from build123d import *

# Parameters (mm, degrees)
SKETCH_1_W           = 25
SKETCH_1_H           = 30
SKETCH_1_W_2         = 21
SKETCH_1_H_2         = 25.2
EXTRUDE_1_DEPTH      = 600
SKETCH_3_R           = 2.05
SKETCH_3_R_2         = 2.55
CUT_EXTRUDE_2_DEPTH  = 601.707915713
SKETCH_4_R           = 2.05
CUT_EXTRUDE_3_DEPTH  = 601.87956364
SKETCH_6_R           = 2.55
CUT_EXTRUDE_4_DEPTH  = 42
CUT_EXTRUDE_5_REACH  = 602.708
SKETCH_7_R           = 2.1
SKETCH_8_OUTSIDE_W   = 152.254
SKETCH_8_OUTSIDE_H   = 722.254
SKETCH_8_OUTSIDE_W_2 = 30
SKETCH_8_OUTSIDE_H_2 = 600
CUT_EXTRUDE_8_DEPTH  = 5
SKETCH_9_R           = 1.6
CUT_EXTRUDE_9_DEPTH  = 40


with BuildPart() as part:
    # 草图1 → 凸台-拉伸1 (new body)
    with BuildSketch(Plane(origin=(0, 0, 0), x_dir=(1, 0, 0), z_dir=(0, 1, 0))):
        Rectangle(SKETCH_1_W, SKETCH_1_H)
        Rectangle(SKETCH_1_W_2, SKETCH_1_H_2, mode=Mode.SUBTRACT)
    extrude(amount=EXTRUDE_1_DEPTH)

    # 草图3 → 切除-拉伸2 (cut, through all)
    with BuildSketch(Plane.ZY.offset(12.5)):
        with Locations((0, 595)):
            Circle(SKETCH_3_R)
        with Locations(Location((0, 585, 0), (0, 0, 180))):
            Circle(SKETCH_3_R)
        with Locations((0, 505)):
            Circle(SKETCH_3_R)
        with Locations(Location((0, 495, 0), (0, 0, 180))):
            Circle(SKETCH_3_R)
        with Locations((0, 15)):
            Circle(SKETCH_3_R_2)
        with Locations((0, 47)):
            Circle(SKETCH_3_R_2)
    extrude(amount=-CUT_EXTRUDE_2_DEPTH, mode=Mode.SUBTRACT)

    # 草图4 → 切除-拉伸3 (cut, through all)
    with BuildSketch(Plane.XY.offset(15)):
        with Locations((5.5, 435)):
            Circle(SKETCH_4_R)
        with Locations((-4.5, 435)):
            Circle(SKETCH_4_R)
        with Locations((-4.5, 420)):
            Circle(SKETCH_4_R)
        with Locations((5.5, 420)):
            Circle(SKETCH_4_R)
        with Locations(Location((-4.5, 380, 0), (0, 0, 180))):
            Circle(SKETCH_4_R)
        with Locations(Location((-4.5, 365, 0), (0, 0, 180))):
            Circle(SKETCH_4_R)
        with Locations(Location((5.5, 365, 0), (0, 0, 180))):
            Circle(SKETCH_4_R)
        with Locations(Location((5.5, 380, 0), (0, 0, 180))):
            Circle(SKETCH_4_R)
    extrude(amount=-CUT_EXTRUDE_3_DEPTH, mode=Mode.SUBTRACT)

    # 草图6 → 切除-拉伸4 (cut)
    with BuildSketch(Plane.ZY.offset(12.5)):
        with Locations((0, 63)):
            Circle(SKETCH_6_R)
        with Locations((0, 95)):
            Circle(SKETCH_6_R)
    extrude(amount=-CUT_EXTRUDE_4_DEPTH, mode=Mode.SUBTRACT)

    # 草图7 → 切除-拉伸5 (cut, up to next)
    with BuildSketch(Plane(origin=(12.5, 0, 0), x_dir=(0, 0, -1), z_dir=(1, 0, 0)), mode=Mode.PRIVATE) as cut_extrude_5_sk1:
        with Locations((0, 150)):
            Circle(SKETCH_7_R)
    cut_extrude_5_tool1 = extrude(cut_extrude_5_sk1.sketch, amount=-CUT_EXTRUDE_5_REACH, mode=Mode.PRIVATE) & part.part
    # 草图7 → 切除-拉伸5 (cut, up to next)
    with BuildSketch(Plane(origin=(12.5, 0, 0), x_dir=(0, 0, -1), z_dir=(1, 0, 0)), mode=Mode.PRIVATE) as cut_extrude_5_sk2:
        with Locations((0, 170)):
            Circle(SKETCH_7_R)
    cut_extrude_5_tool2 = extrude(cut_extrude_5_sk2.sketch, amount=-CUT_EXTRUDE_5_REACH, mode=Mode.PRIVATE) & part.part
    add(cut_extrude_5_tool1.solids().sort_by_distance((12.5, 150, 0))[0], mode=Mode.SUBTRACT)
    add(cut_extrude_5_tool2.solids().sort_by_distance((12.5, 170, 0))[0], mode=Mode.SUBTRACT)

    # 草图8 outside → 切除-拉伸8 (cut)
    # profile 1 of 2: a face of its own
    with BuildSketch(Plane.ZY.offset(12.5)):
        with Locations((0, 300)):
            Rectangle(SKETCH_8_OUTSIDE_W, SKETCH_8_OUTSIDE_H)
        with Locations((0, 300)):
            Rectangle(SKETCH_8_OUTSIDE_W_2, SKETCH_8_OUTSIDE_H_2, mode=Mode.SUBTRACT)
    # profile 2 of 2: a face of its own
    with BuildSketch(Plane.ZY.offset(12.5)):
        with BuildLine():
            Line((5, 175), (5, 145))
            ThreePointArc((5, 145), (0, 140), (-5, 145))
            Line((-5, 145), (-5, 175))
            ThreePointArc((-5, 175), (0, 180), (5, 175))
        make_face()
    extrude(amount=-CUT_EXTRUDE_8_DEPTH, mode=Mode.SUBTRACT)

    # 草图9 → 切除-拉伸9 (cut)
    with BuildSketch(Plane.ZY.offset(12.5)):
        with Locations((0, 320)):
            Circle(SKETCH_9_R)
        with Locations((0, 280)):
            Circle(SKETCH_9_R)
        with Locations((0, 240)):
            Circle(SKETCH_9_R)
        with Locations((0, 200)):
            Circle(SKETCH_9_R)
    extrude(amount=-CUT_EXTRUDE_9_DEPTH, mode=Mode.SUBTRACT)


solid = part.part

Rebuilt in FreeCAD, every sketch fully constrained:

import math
import FreeCAD as App
import Part
import Sketcher
from FreeCAD import Vector
Q = App.Units.Quantity

doc = App.newDocument("Part")
body = doc.addObject("PartDesign::Body", "Body")

# Sketch on XZ plane
sketch1 = body.newObject("Sketcher::SketchObject", "Sketch")
sketch1.AttachmentSupport = (doc.getObject("XZ_Plane"), [""])
sketch1.MapMode = "FlatFace"
sketch1.addGeometry([
    Part.LineSegment(Vector(-12.5, -15, 0), Vector(-12.5, 15, 0)),  # 0
    Part.LineSegment(Vector(-12.5, 15, 0), Vector(12.5, 15, 0)),  # 1
    Part.LineSegment(Vector(12.5, 15, 0), Vector(12.5, -15, 0)),  # 2
    Part.LineSegment(Vector(12.5, -15, 0), Vector(-12.5, -15, 0)),  # 3
    Part.LineSegment(Vector(10.5, 12.6, 0), Vector(-10.5, 12.6, 0)),  # 4
    Part.LineSegment(Vector(-10.5, 12.6, 0), Vector(-10.5, -12.6, 0)),  # 5
    Part.LineSegment(Vector(-10.5, -12.6, 0), Vector(10.5, -12.6, 0)),  # 6
    Part.LineSegment(Vector(10.5, -12.6, 0), Vector(10.5, 12.6, 0)),  # 7
], False)
sketch1.addConstraint([
    Sketcher.Constraint("Coincident", 0, 2, 1, 1),
    Sketcher.Constraint("Coincident", 1, 2, 2, 1),
    Sketcher.Constraint("Coincident", 2, 2, 3, 1),
    Sketcher.Constraint("Coincident", 3, 2, 0, 1),
    Sketcher.Constraint("Coincident", 4, 2, 5, 1),
    Sketcher.Constraint("Coincident", 5, 2, 6, 1),
    Sketcher.Constraint("Coincident", 6, 2, 7, 1),
    Sketcher.Constraint("Coincident", 7, 2, 4, 1),
    Sketcher.Constraint("Vertical", 0),
    Sketcher.Constraint("Horizontal", 1),
    Sketcher.Constraint("Vertical", 2),
    Sketcher.Constraint("Horizontal", 3),
    Sketcher.Constraint("Horizontal", 4),
    Sketcher.Constraint("Vertical", 5),
    Sketcher.Constraint("Horizontal", 6),
    Sketcher.Constraint("Vertical", 7),
    Sketcher.Constraint("Symmetric", 0, 2, 2, 2, -1, 1),
    Sketcher.Constraint("Symmetric", 4, 2, 6, 2, -1, 1),
    Sketcher.Constraint("DistanceX", 1, 1, 1, 2, Q("25 mm")),
    Sketcher.Constraint("DistanceX", 4, 2, 4, 1, Q("21 mm")),
    Sketcher.Constraint("DistanceY", 0, 1, 0, 2, Q("30 mm")),
    Sketcher.Constraint("DistanceY", 5, 2, 5, 1, Q("25.2 mm")),
])
pad1 = body.newObject("PartDesign::Pad", "Pad")
pad1.Profile = sketch1
pad1.Length = 600
pad1.Reversed = True

# Sketch on YZ plane
sketch2 = body.newObject("Sketcher::SketchObject", "Sketch001")
sketch2.AttachmentSupport = (doc.getObject("YZ_Plane"), [""])
sketch2.MapMode = "FlatFace"
sketch2.AttachmentOffset = App.Placement(Vector(0, 0, -12.5), App.Rotation())
sketch2.addGeometry([
    Part.Circle(Vector(595, 0, 0), Vector(0, 0, 1), 2.05),  # 0
    Part.Circle(Vector(585, 0, 0), Vector(0, 0, 1), 2.05),  # 1
    Part.Circle(Vector(505, 0, 0), Vector(0, 0, 1), 2.05),  # 2
    Part.Circle(Vector(495, 0, 0), Vector(0, 0, 1), 2.05),  # 3
    Part.Circle(Vector(15, 0, 0), Vector(0, 0, 1), 2.55),  # 4
    Part.Circle(Vector(47, 0, 0), Vector(0, 0, 1), 2.55),  # 5
], False)
sketch2.addConstraint([
    Sketcher.Constraint("Equal", 0, 1),
    Sketcher.Constraint("Equal", 1, 2),
    Sketcher.Constraint("Equal", 2, 3),
    Sketcher.Constraint("Equal", 4, 5),
    Sketcher.Constraint("PointOnObject", 0, 3, -1),
    Sketcher.Constraint("PointOnObject", 1, 3, -1),
    Sketcher.Constraint("PointOnObject", 2, 3, -1),
    Sketcher.Constraint("PointOnObject", 3, 3, -1),
    Sketcher.Constraint("PointOnObject", 4, 3, -1),
    Sketcher.Constraint("PointOnObject", 5, 3, -1),
    Sketcher.Constraint("Diameter", 0, Q("4.1 mm")),
    Sketcher.Constraint("Diameter", 4, Q("5.1 mm")),
    Sketcher.Constraint("DistanceX", -1, 1, 0, 3, Q("595 mm")),
    Sketcher.Constraint("DistanceX", -1, 1, 1, 3, Q("585 mm")),
    Sketcher.Constraint("DistanceX", -1, 1, 2, 3, Q("505 mm")),
    Sketcher.Constraint("DistanceX", -1, 1, 3, 3, Q("495 mm")),
    Sketcher.Constraint("DistanceX", -1, 1, 4, 3, Q("15 mm")),
    Sketcher.Constraint("DistanceX", -1, 1, 5, 3, Q("47 mm")),
])
pocket1 = body.newObject("PartDesign::Pocket", "Pocket")
pocket1.Profile = sketch2
pocket1.Type = "ThroughAll"
pocket1.Reversed = True

# Sketch on XY plane
sketch3 = body.newObject("Sketcher::SketchObject", "Sketch002")
sketch3.AttachmentSupport = (doc.getObject("XY_Plane"), [""])
sketch3.MapMode = "FlatFace"
sketch3.AttachmentOffset = App.Placement(Vector(0, 0, 15), App.Rotation())
sketch3.addGeometry([
    Part.Circle(Vector(5.5, 435, 0), Vector(0, 0, 1), 2.05),  # 0
    Part.Circle(Vector(-4.5, 435, 0), Vector(0, 0, 1), 2.05),  # 1
    Part.Circle(Vector(-4.5, 420, 0), Vector(0, 0, 1), 2.05),  # 2
    Part.Circle(Vector(5.5, 420, 0), Vector(0, 0, 1), 2.05),  # 3
    Part.Circle(Vector(-4.5, 380, 0), Vector(0, 0, 1), 2.05),  # 4
    Part.Circle(Vector(-4.5, 365, 0), Vector(0, 0, 1), 2.05),  # 5
    Part.Circle(Vector(5.5, 365, 0), Vector(0, 0, 1), 2.05),  # 6
    Part.Circle(Vector(5.5, 380, 0), Vector(0, 0, 1), 2.05),  # 7
], False)
sketch3.addConstraint([
    Sketcher.Constraint("Equal", 0, 1),
    Sketcher.Constraint("Equal", 1, 2),
    Sketcher.Constraint("Equal", 2, 3),
    Sketcher.Constraint("Equal", 3, 4),
    Sketcher.Constraint("Equal", 4, 5),
    Sketcher.Constraint("Equal", 5, 6),
    Sketcher.Constraint("Equal", 6, 7),
    Sketcher.Constraint("Horizontal", 0, 3, 1, 3),
    Sketcher.Constraint("Horizontal", 2, 3, 3, 3),
    Sketcher.Constraint("Horizontal", 5, 3, 6, 3),
    Sketcher.Constraint("Horizontal", 4, 3, 7, 3),
    Sketcher.Constraint("Vertical", 1, 3, 2, 3),
    Sketcher.Constraint("Vertical", 0, 3, 3, 3),
    Sketcher.Constraint("Vertical", 2, 3, 4, 3),
    Sketcher.Constraint("Vertical", 4, 3, 5, 3),
    Sketcher.Constraint("Vertical", 3, 3, 6, 3),
    Sketcher.Constraint("Vertical", 6, 3, 7, 3),
    Sketcher.Constraint("Diameter", 0, Q("4.1 mm")),
    Sketcher.Constraint("DistanceY", -1, 1, 0, 3, Q("435 mm")),
    Sketcher.Constraint("DistanceY", -1, 1, 2, 3, Q("420 mm")),
    Sketcher.Constraint("DistanceY", -1, 1, 4, 3, Q("380 mm")),
    Sketcher.Constraint("DistanceY", -1, 1, 5, 3, Q("365 mm")),
    Sketcher.Constraint("DistanceX", 1, 3, 0, 3, Q("10 mm")),
    Sketcher.Constraint("DistanceX", -1, 1, 0, 3, Q("5.5 mm")),
])
pocket2 = body.newObject("PartDesign::Pocket", "Pocket001")
pocket2.Profile = sketch3
pocket2.Type = "ThroughAll"

# Sketch on YZ plane
sketch4 = body.newObject("Sketcher::SketchObject", "Sketch003")
sketch4.AttachmentSupport = (doc.getObject("YZ_Plane"), [""])
sketch4.MapMode = "FlatFace"
sketch4.AttachmentOffset = App.Placement(Vector(0, 0, -12.5), App.Rotation())
sketch4.addGeometry([
    Part.Circle(Vector(63, 0, 0), Vector(0, 0, 1), 2.55),
    Part.Circle(Vector(95, 0, 0), Vector(0, 0, 1), 2.55),
], False)
sketch4.addConstraint([
    Sketcher.Constraint("Equal", 0, 1),
    Sketcher.Constraint("PointOnObject", 0, 3, -1),
    Sketcher.Constraint("PointOnObject", 1, 3, -1),
    Sketcher.Constraint("Diameter", 0, Q("5.1 mm")),
    Sketcher.Constraint("DistanceX", -1, 1, 0, 3, Q("63 mm")),
    Sketcher.Constraint("DistanceX", -1, 1, 1, 3, Q("95 mm")),
])
pocket3 = body.newObject("PartDesign::Pocket", "Pocket002")
pocket3.Profile = sketch4
pocket3.Length = 42
pocket3.Reversed = True

# Sketch on YZ plane
sketch5 = body.newObject("Sketcher::SketchObject", "Sketch004")
sketch5.AttachmentSupport = (doc.getObject("YZ_Plane"), [""])
sketch5.MapMode = "FlatFace"
sketch5.AttachmentOffset = App.Placement(Vector(0, 0, 12.5), App.Rotation())
sketch5.addGeometry(Part.Circle(Vector(150, 0, 0), Vector(0, 0, 1), 2.1), False)
sketch5.addConstraint([
    Sketcher.Constraint("PointOnObject", 0, 3, -1),
    Sketcher.Constraint("Diameter", 0, Q("4.2 mm")),
    Sketcher.Constraint("DistanceX", -1, 1, 0, 3, Q("150 mm")),
])
pocket4 = body.newObject("PartDesign::Pocket", "Pocket003")
pocket4.Profile = sketch5
pocket4.Type = "UpToFirst"

# Sketch on YZ plane
sketch6 = body.newObject("Sketcher::SketchObject", "Sketch005")
sketch6.AttachmentSupport = (doc.getObject("YZ_Plane"), [""])
sketch6.MapMode = "FlatFace"
sketch6.AttachmentOffset = App.Placement(Vector(0, 0, 12.5), App.Rotation())
sketch6.addGeometry(Part.Circle(Vector(170, 0, 0), Vector(0, 0, 1), 2.1), False)
sketch6.addConstraint([
    Sketcher.Constraint("PointOnObject", 0, 3, -1),
    Sketcher.Constraint("Diameter", 0, Q("4.2 mm")),
    Sketcher.Constraint("DistanceX", -1, 1, 0, 3, Q("170 mm")),
])
pocket5 = body.newObject("PartDesign::Pocket", "Pocket004")
pocket5.Profile = sketch6
pocket5.Type = "UpToFirst"

# Sketch on YZ plane
sketch7 = body.newObject("Sketcher::SketchObject", "Sketch006")
sketch7.AttachmentSupport = (doc.getObject("YZ_Plane"), [""])
sketch7.MapMode = "FlatFace"
sketch7.AttachmentOffset = App.Placement(Vector(0, 0, -12.5), App.Rotation())
sketch7.addGeometry([
    Part.LineSegment(Vector(661.127, -76.127, 0), Vector(-61.127, -76.127, 0)),  # 0
    Part.LineSegment(Vector(-61.127, -76.127, 0), Vector(-61.127, 76.127, 0)),  # 1
    Part.LineSegment(Vector(-61.127, 76.127, 0), Vector(661.127, 76.127, 0)),  # 2
    Part.LineSegment(Vector(661.127, 76.127, 0), Vector(661.127, -76.127, 0)),  # 3
    Part.LineSegment(Vector(0, 15, 0), Vector(0, -15, 0)),  # 4
    Part.LineSegment(Vector(0, -15, 0), Vector(600, -15, 0)),  # 5
    Part.LineSegment(Vector(600, -15, 0), Vector(600, 15, 0)),  # 6
    Part.LineSegment(Vector(600, 15, 0), Vector(0, 15, 0)),  # 7
    Part.LineSegment(Vector(145, 5, 0), Vector(175, 5, 0)),  # 8
    Part.ArcOfCircle(Part.Circle(Vector(175, 0, 0), Vector(0, 0, 1), 5), math.radians(-90), math.radians(90)),  # 9
    Part.LineSegment(Vector(175, -5, 0), Vector(145, -5, 0)),  # 10
    Part.ArcOfCircle(Part.Circle(Vector(145, 0, 0), Vector(0, 0, 1), 5), math.radians(90), math.radians(270)),  # 11
], False)
sketch7.addConstraint([
    Sketcher.Constraint("Coincident", 0, 2, 1, 1),
    Sketcher.Constraint("Coincident", 1, 2, 2, 1),
    Sketcher.Constraint("Coincident", 2, 2, 3, 1),
    Sketcher.Constraint("Coincident", 3, 2, 0, 1),
    Sketcher.Constraint("Coincident", 4, 2, 5, 1),
    Sketcher.Constraint("Coincident", 5, 2, 6, 1),
    Sketcher.Constraint("Coincident", 6, 2, 7, 1),
    Sketcher.Constraint("Coincident", 7, 2, 4, 1),
    Sketcher.Constraint("Tangent", 8, 2, 9, 2),
    Sketcher.Constraint("Tangent", 9, 1, 10, 1),
    Sketcher.Constraint("Tangent", 10, 2, 11, 2),
    Sketcher.Constraint("Tangent", 11, 1, 8, 1),
    Sketcher.Constraint("Horizontal", 0),
    Sketcher.Constraint("Vertical", 1),
    Sketcher.Constraint("Horizontal", 2),
    Sketcher.Constraint("Vertical", 3),
    Sketcher.Constraint("Vertical", 4),
    Sketcher.Constraint("Horizontal", 5),
    Sketcher.Constraint("Vertical", 6),
    Sketcher.Constraint("Horizontal", 7),
    Sketcher.Constraint("Horizontal", 8),
    Sketcher.Constraint("Horizontal", 10),
    Sketcher.Constraint("Symmetric", 4, 2, 7, 2, -1, 1),
    Sketcher.Constraint("PointOnObject", 9, 3, -1),
    Sketcher.Constraint("Equal", 10, 4),
    Sketcher.Constraint("Radius", 9, Q("5 mm")),
    Sketcher.Constraint("DistanceX", 5, 1, 5, 2, Q("600 mm")),
    Sketcher.Constraint("DistanceX", 8, 1, 8, 2, Q("30 mm")),
    Sketcher.Constraint("DistanceX", -1, 1, 9, 3, Q("175 mm")),
    Sketcher.Constraint("DistanceX", 0, 2, 0, 1, Q("722.254 mm")),
    Sketcher.Constraint("DistanceY", 1, 1, 1, 2, Q("152.254 mm")),
    Sketcher.Constraint("DistanceX", 0, 2, -1, 1, Q("61.127 mm")),
    Sketcher.Constraint("DistanceY", 0, 2, -1, 1, Q("76.127 mm")),
])
pocket6 = body.newObject("PartDesign::Pocket", "Pocket005")
pocket6.Profile = sketch7
pocket6.Length = 5
pocket6.Reversed = True

# Sketch on YZ plane
sketch8 = body.newObject("Sketcher::SketchObject", "Sketch007")
sketch8.AttachmentSupport = (doc.getObject("YZ_Plane"), [""])
sketch8.MapMode = "FlatFace"
sketch8.AttachmentOffset = App.Placement(Vector(0, 0, -12.5), App.Rotation())
sketch8.addGeometry([
    Part.Circle(Vector(320, 0, 0), Vector(0, 0, 1), 1.6),
    Part.Circle(Vector(280, 0, 0), Vector(0, 0, 1), 1.6),
    Part.Circle(Vector(240, 0, 0), Vector(0, 0, 1), 1.6),
    Part.Circle(Vector(200, 0, 0), Vector(0, 0, 1), 1.6),
], False)
sketch8.addConstraint([
    Sketcher.Constraint("Equal", 0, 1),
    Sketcher.Constraint("Equal", 1, 2),
    Sketcher.Constraint("Equal", 2, 3),
    Sketcher.Constraint("PointOnObject", 0, 3, -1),
    Sketcher.Constraint("PointOnObject", 1, 3, -1),
    Sketcher.Constraint("PointOnObject", 2, 3, -1),
    Sketcher.Constraint("PointOnObject", 3, 3, -1),
    Sketcher.Constraint("Diameter", 0, Q("3.2 mm")),
    Sketcher.Constraint("DistanceX", -1, 1, 0, 3, Q("320 mm")),
    Sketcher.Constraint("DistanceX", -1, 1, 1, 3, Q("280 mm")),
    Sketcher.Constraint("DistanceX", -1, 1, 2, 3, Q("240 mm")),
    Sketcher.Constraint("DistanceX", -1, 1, 3, 3, Q("200 mm")),
])
pocket7 = body.newObject("PartDesign::Pocket", "Pocket006")
pocket7.Profile = sketch8
pocket7.Length = 40
pocket7.Reversed = True

doc.recompute()
